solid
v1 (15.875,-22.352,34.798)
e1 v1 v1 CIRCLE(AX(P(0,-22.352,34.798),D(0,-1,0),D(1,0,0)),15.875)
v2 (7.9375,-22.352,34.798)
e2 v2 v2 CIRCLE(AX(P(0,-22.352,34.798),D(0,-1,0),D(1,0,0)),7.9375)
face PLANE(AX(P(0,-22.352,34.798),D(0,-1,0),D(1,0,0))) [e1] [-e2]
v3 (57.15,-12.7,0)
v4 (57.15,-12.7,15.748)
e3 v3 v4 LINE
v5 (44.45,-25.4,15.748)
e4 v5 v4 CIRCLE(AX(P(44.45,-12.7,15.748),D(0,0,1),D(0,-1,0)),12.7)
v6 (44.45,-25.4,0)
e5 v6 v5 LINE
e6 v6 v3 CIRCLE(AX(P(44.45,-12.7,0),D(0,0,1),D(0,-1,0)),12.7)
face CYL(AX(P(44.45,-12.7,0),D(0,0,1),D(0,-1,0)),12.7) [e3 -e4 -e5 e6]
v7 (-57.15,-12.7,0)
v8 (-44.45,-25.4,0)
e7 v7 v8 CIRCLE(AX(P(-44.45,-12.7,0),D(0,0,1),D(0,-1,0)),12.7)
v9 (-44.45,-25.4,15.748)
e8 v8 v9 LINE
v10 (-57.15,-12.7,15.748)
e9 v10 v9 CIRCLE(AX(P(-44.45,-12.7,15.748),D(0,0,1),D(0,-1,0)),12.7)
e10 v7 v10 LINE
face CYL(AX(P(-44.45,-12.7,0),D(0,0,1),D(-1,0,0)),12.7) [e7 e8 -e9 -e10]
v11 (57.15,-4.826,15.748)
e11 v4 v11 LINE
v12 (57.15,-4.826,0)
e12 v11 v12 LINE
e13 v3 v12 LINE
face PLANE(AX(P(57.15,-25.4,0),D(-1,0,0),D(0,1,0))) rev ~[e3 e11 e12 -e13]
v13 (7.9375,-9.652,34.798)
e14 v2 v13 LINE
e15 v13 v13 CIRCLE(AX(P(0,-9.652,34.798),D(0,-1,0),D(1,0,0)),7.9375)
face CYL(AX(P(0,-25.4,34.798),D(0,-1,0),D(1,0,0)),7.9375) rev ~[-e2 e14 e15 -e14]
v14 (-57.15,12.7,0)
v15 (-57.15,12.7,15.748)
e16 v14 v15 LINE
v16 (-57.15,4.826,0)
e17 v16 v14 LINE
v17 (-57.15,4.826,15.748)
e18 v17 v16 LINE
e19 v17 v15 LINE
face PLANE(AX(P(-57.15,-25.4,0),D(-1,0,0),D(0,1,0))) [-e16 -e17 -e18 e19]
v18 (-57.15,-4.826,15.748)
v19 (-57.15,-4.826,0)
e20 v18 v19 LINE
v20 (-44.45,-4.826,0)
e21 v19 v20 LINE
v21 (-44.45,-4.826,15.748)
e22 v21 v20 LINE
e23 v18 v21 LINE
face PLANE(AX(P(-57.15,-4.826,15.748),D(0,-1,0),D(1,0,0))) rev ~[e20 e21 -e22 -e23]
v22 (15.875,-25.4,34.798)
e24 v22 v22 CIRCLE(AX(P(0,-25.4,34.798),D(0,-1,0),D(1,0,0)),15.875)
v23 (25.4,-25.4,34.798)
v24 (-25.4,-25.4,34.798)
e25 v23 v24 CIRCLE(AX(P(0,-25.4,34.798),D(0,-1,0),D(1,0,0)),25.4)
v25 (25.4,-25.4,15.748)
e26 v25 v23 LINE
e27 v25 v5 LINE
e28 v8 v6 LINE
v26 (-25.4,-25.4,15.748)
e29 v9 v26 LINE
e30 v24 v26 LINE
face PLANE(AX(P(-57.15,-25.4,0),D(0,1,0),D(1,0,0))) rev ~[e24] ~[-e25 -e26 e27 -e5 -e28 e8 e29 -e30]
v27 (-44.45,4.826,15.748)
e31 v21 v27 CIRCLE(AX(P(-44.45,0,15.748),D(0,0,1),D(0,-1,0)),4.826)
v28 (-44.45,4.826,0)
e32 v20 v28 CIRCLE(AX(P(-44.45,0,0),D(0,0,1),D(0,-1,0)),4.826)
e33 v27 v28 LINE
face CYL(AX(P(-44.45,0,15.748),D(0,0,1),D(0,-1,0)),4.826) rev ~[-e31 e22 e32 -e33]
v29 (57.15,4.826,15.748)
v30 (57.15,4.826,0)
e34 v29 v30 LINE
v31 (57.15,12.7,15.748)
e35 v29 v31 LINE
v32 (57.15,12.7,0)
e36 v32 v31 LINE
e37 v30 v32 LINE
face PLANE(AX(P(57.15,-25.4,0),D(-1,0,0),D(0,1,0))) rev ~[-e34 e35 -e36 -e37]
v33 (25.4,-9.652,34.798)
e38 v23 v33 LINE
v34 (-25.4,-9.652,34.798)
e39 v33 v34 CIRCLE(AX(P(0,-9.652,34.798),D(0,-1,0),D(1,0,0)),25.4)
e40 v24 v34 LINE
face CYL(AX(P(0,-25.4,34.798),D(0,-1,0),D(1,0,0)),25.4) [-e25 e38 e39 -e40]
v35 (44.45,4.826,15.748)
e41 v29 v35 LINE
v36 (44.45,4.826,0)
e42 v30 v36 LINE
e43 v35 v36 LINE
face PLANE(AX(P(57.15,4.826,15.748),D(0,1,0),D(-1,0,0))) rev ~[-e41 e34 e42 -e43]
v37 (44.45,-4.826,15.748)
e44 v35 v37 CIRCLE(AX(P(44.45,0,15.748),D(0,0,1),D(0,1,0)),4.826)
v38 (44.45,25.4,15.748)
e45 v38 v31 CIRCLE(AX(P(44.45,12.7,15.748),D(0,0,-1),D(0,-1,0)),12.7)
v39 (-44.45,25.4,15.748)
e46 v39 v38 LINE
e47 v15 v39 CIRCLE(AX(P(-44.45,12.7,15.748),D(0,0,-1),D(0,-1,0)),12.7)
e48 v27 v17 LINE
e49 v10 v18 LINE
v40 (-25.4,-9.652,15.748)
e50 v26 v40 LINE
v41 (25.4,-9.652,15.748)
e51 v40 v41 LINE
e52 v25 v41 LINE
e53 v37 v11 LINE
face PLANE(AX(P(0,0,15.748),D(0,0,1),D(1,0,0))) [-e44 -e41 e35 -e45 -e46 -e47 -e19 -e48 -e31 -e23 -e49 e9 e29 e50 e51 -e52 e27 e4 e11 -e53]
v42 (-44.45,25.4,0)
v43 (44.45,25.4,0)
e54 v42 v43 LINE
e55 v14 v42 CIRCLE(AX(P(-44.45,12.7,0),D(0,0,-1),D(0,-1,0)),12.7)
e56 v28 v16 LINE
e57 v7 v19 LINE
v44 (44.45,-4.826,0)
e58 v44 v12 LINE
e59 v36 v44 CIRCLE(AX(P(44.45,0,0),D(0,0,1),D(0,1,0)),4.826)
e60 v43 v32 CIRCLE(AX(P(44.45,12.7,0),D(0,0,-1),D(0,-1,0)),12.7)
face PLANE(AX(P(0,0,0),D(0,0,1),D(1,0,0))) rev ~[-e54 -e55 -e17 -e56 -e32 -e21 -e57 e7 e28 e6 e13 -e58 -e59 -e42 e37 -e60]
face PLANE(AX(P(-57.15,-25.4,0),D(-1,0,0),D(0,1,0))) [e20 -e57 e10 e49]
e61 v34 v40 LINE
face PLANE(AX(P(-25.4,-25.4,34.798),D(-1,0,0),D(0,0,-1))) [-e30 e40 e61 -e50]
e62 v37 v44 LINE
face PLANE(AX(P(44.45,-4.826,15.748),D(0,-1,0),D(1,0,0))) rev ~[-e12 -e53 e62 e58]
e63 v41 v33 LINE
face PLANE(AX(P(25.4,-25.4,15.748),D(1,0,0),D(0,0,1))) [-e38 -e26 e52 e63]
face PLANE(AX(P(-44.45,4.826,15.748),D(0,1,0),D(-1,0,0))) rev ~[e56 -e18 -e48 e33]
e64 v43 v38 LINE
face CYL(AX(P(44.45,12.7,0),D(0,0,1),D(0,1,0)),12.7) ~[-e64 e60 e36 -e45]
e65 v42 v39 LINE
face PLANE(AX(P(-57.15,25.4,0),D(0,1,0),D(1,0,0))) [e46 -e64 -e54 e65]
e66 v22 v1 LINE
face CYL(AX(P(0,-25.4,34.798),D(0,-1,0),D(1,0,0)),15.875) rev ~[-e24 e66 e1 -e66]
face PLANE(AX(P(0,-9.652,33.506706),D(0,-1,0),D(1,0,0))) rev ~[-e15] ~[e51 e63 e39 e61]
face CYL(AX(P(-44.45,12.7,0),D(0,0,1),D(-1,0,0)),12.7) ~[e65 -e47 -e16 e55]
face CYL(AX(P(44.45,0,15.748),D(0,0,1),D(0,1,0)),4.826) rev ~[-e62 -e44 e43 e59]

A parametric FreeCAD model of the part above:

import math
import FreeCAD as App
import Part
import Sketcher
from FreeCAD import Vector
Q = App.Units.Quantity


def edges_at(feature, points):
    """Names of the edges that pass closest to the given points."""
    edges = feature.Shape.Edges
    near = lambda p: min(range(len(edges)), key=lambda i: edges[i].distToShape(Part.Vertex(*p))[0])
    return sorted({f"Edge{near(p) + 1}" for p in points})


def add_polygon(sketch, points):
    """Adds a closed chain of lines whose ends are joined by coincident constraints."""
    first, n = sketch.GeometryCount, len(points)
    for a, b in zip(points, points[1:] + points[:1]):
        sketch.addGeometry(Part.LineSegment(App.Vector(*a, 0), App.Vector(*b, 0)), False)
    for i in range(n):
        sketch.addConstraint(Sketcher.Constraint("Coincident", first + i, 2, first + (i + 1) % n, 1))

doc = App.newDocument("Part")
body = doc.addObject("PartDesign::Body", "Body")

# Sketch on XY plane
sketch1 = body.newObject("Sketcher::SketchObject", "Sketch")
sketch1.AttachmentSupport = (doc.getObject("XY_Plane"), [""])
sketch1.MapMode = "FlatFace"
add_polygon(sketch1, [(-57, 25), (-57, -25), (57, -25), (57, 25)])  # lines 0-3
sketch1.addConstraint(Sketcher.Constraint("Vertical", 0))
sketch1.addConstraint(Sketcher.Constraint("Horizontal", 1))
sketch1.addConstraint(Sketcher.Constraint("Vertical", 2))
sketch1.addConstraint(Sketcher.Constraint("Horizontal", 3))
sketch1.addConstraint(Sketcher.Constraint("Symmetric", 0, 2, 2, 2, -1, 1))
sketch1.addConstraint(Sketcher.Constraint("DistanceY", 0, 2, 0, 1, Q("2 in")))
sketch1.addConstraint(Sketcher.Constraint("DistanceX", 1, 1, 1, 2, Q("4.5 in")))
pad1 = body.newObject("PartDesign::Pad", "Pad")
pad1.Profile = sketch1
pad1.Length = Q("0.62 in")

# Sketch on XZ plane
sketch2 = body.newObject("Sketcher::SketchObject", "Sketch001")
sketch2.AttachmentSupport = (doc.getObject("XZ_Plane"), [""])
sketch2.MapMode = "FlatFace"
sketch2.AttachmentOffset = App.Placement(Vector(0, 0, 1 * 25.4), App.Rotation())
sketch2.addGeometry(Part.LineSegment(Vector(25, 16, 0), Vector(25, 35, 0)), False)
sketch2.addGeometry(Part.ArcOfCircle(Part.Circle(Vector(0, 35, 0), Vector(0, 0, 1), 25), math.radians(0), math.radians(180)), False)
sketch2.addGeometry(Part.LineSegment(Vector(-25, 35, 0), Vector(-25, 16, 0)), False)
sketch2.addGeometry(Part.LineSegment(Vector(-25, 16, 0), Vector(25, 16, 0)), False)
sketch2.addGeometry(Part.Circle(Vector(0, 35, 0), Vector(0, 0, 1), 8), False)
sketch2.addConstraint(Sketcher.Constraint("Tangent", 0, 2, 1, 1))
sketch2.addConstraint(Sketcher.Constraint("Tangent", 1, 2, 2, 1))
sketch2.addConstraint(Sketcher.Constraint("Coincident", 2, 2, 3, 1))
sketch2.addConstraint(Sketcher.Constraint("Coincident", 3, 2, 0, 1))
sketch2.addConstraint(Sketcher.Constraint("Vertical", 0))
sketch2.addConstraint(Sketcher.Constraint("Vertical", 2))
sketch2.addConstraint(Sketcher.Constraint("Horizontal", 3))
sketch2.addConstraint(Sketcher.Constraint("Coincident", 4, 3, 1, 3))
sketch2.addConstraint(Sketcher.Constraint("PointOnObject", 1, 3, -2))
sketch2.addConstraint(Sketcher.Constraint("Radius", 1, Q("1 in")))
sketch2.addConstraint(Sketcher.Constraint("Diameter", 4, Q("0.625 in")))
sketch2.addConstraint(Sketcher.Constraint("DistanceY", 0, 1, 0, 2, Q("0.75 in")))
sketch2.addConstraint(Sketcher.Constraint("DistanceY", -1, 1, 1, 3, Q("1.37 in")))
pad2 = body.newObject("PartDesign::Pad", "Pad001")
pad2.Profile = sketch2
pad2.Length = Q("0.62 in")
pad2.Reversed = True

# Sketch on XZ plane
sketch3 = body.newObject("Sketcher::SketchObject", "Sketch002")
sketch3.AttachmentSupport = (doc.getObject("XZ_Plane"), [""])
sketch3.MapMode = "FlatFace"
sketch3.AttachmentOffset = App.Placement(Vector(0, 0, 1 * 25.4), App.Rotation())
sketch3.addGeometry(Part.Circle(Vector(0, 35, 0), Vector(0, 0, 1), 16), False)
sketch3.addGeometry(Part.Circle(Vector(0, 35, 0), Vector(0, 0, 1), 8), False)
sketch3.addConstraint(Sketcher.Constraint("Coincident", 1, 3, 0, 3))
sketch3.addConstraint(Sketcher.Constraint("PointOnObject", 0, 3, -2))
sketch3.addConstraint(Sketcher.Constraint("Diameter", 0, Q("1.25 in")))
sketch3.addConstraint(Sketcher.Constraint("Diameter", 1, Q("0.625 in")))
sketch3.addConstraint(Sketcher.Constraint("DistanceY", -1, 1, 0, 3, Q("1.37 in")))
pocket1 = body.newObject("PartDesign::Pocket", "Pocket")
pocket1.Profile = sketch3
pocket1.Length = Q("0.12 in")

# Sketch on XZ plane
sketch4 = body.newObject("Sketcher::SketchObject", "Sketch003")
sketch4.AttachmentSupport = (doc.getObject("XZ_Plane"), [""])
sketch4.MapMode = "FlatFace"
sketch4.AttachmentOffset = App.Placement(Vector(0, 0, 1 * 25.4), App.Rotation())
sketch4.addGeometry(Part.Circle(Vector(0, 35, 0), Vector(0, 0, 1), 8), False)
sketch4.addConstraint(Sketcher.Constraint("PointOnObject", 0, 3, -2))
sketch4.addConstraint(Sketcher.Constraint("Diameter", 0, Q("0.625 in")))
sketch4.addConstraint(Sketcher.Constraint("DistanceY", -1, 1, 0, 3, Q("1.37 in")))
pocket2 = body.newObject("PartDesign::Pocket", "Pocket001")
pocket2.Profile = sketch4
pocket2.Type = "ThroughAll"

# Sketch on XY plane
sketch5 = body.newObject("Sketcher::SketchObject", "Sketch004")
sketch5.AttachmentSupport = (doc.getObject("XY_Plane"), [""])
sketch5.MapMode = "FlatFace"
sketch5.AttachmentOffset = App.Placement(Vector(0, 0, 0.62 * 25.4), App.Rotation())
sketch5.addGeometry(Part.LineSegment(Vector(-57.1, -4.8, 0), Vector(-44.5, -4.8, 0)), False)
sketch5.addGeometry(Part.ArcOfCircle(Part.Circle(Vector(-44.5, 0, 0), Vector(0, 0, 1), 4.8), math.radians(-90), math.radians(90)), False)
sketch5.addGeometry(Part.LineSegment(Vector(-44.5, 4.8, 0), Vector(-57.1, 4.8, 0)), False)
sketch5.addGeometry(Part.LineSegment(Vector(-57.1, 4.8, 0), Vector(-57.1, -4.8, 0)), False)
sketch5.addGeometry(Part.LineSegment(Vector(57.1, -4.8, 0), Vector(57.1, 4.8, 0)), False)
sketch5.addGeometry(Part.LineSegment(Vector(57.1, 4.8, 0), Vector(44.5, 4.8, 0)), False)
sketch5.addGeometry(Part.ArcOfCircle(Part.Circle(Vector(44.5, 0, 0), Vector(0, 0, 1), 4.8), math.radians(90), math.radians(270)), False)
sketch5.addGeometry(Part.LineSegment(Vector(44.5, -4.8, 0), Vector(57.1, -4.8, 0)), False)
sketch5.addConstraint(Sketcher.Constraint("Tangent", 0, 2, 1, 1))
sketch5.addConstraint(Sketcher.Constraint("Tangent", 1, 2, 2, 1))
sketch5.addConstraint(Sketcher.Constraint("Coincident", 2, 2, 3, 1))
sketch5.addConstraint(Sketcher.Constraint("Coincident", 3, 2, 0, 1))
sketch5.addConstraint(Sketcher.Constraint("Coincident", 4, 2, 5, 1))
sketch5.addConstraint(Sketcher.Constraint("Tangent", 5, 2, 6, 1))
sketch5.addConstraint(Sketcher.Constraint("Tangent", 6, 2, 7, 1))
sketch5.addConstraint(Sketcher.Constraint("Coincident", 7, 2, 4, 1))
sketch5.addConstraint(Sketcher.Constraint("Horizontal", 0))
sketch5.addConstraint(Sketcher.Constraint("Horizontal", 2))
sketch5.addConstraint(Sketcher.Constraint("Vertical", 3))
sketch5.addConstraint(Sketcher.Constraint("Vertical", 4))
sketch5.addConstraint(Sketcher.Constraint("Horizontal", 5))
sketch5.addConstraint(Sketcher.Constraint("Horizontal", 7))
sketch5.addConstraint(Sketcher.Constraint("Equal", 1, 6))
sketch5.addConstraint(Sketcher.Constraint("Symmetric", 1, 3, 6, 3, -1, 1))
sketch5.addConstraint(Sketcher.Constraint("Symmetric", 2, 2, 4, 2, -2))
sketch5.addConstraint(Sketcher.Constraint("Radius", 1, Q("0.19 in")))
sketch5.addConstraint(Sketcher.Constraint("DistanceX", 0, 1, 0, 2, Q("0.5 in")))
sketch5.addConstraint(Sketcher.Constraint("DistanceX", 2, 2, 6, 3, Q("4 in")))
pocket3 = body.newObject("PartDesign::Pocket", "Pocket002")
pocket3.Profile = sketch5
pocket3.Type = "ThroughAll"
doc.recompute()

fillet = body.newObject("PartDesign::Fillet", "Fillet")
fillet.Base = (pocket3, edges_at(pocket3, [
    (57.15, -25.4, 7.874),
    (57.15, 25.4, 7.874),
    (-57.15, -25.4, 7.874),
    (-57.15, 25.4, 7.874),
]))
fillet.Radius = Q("0.5 in")

doc.recompute()
